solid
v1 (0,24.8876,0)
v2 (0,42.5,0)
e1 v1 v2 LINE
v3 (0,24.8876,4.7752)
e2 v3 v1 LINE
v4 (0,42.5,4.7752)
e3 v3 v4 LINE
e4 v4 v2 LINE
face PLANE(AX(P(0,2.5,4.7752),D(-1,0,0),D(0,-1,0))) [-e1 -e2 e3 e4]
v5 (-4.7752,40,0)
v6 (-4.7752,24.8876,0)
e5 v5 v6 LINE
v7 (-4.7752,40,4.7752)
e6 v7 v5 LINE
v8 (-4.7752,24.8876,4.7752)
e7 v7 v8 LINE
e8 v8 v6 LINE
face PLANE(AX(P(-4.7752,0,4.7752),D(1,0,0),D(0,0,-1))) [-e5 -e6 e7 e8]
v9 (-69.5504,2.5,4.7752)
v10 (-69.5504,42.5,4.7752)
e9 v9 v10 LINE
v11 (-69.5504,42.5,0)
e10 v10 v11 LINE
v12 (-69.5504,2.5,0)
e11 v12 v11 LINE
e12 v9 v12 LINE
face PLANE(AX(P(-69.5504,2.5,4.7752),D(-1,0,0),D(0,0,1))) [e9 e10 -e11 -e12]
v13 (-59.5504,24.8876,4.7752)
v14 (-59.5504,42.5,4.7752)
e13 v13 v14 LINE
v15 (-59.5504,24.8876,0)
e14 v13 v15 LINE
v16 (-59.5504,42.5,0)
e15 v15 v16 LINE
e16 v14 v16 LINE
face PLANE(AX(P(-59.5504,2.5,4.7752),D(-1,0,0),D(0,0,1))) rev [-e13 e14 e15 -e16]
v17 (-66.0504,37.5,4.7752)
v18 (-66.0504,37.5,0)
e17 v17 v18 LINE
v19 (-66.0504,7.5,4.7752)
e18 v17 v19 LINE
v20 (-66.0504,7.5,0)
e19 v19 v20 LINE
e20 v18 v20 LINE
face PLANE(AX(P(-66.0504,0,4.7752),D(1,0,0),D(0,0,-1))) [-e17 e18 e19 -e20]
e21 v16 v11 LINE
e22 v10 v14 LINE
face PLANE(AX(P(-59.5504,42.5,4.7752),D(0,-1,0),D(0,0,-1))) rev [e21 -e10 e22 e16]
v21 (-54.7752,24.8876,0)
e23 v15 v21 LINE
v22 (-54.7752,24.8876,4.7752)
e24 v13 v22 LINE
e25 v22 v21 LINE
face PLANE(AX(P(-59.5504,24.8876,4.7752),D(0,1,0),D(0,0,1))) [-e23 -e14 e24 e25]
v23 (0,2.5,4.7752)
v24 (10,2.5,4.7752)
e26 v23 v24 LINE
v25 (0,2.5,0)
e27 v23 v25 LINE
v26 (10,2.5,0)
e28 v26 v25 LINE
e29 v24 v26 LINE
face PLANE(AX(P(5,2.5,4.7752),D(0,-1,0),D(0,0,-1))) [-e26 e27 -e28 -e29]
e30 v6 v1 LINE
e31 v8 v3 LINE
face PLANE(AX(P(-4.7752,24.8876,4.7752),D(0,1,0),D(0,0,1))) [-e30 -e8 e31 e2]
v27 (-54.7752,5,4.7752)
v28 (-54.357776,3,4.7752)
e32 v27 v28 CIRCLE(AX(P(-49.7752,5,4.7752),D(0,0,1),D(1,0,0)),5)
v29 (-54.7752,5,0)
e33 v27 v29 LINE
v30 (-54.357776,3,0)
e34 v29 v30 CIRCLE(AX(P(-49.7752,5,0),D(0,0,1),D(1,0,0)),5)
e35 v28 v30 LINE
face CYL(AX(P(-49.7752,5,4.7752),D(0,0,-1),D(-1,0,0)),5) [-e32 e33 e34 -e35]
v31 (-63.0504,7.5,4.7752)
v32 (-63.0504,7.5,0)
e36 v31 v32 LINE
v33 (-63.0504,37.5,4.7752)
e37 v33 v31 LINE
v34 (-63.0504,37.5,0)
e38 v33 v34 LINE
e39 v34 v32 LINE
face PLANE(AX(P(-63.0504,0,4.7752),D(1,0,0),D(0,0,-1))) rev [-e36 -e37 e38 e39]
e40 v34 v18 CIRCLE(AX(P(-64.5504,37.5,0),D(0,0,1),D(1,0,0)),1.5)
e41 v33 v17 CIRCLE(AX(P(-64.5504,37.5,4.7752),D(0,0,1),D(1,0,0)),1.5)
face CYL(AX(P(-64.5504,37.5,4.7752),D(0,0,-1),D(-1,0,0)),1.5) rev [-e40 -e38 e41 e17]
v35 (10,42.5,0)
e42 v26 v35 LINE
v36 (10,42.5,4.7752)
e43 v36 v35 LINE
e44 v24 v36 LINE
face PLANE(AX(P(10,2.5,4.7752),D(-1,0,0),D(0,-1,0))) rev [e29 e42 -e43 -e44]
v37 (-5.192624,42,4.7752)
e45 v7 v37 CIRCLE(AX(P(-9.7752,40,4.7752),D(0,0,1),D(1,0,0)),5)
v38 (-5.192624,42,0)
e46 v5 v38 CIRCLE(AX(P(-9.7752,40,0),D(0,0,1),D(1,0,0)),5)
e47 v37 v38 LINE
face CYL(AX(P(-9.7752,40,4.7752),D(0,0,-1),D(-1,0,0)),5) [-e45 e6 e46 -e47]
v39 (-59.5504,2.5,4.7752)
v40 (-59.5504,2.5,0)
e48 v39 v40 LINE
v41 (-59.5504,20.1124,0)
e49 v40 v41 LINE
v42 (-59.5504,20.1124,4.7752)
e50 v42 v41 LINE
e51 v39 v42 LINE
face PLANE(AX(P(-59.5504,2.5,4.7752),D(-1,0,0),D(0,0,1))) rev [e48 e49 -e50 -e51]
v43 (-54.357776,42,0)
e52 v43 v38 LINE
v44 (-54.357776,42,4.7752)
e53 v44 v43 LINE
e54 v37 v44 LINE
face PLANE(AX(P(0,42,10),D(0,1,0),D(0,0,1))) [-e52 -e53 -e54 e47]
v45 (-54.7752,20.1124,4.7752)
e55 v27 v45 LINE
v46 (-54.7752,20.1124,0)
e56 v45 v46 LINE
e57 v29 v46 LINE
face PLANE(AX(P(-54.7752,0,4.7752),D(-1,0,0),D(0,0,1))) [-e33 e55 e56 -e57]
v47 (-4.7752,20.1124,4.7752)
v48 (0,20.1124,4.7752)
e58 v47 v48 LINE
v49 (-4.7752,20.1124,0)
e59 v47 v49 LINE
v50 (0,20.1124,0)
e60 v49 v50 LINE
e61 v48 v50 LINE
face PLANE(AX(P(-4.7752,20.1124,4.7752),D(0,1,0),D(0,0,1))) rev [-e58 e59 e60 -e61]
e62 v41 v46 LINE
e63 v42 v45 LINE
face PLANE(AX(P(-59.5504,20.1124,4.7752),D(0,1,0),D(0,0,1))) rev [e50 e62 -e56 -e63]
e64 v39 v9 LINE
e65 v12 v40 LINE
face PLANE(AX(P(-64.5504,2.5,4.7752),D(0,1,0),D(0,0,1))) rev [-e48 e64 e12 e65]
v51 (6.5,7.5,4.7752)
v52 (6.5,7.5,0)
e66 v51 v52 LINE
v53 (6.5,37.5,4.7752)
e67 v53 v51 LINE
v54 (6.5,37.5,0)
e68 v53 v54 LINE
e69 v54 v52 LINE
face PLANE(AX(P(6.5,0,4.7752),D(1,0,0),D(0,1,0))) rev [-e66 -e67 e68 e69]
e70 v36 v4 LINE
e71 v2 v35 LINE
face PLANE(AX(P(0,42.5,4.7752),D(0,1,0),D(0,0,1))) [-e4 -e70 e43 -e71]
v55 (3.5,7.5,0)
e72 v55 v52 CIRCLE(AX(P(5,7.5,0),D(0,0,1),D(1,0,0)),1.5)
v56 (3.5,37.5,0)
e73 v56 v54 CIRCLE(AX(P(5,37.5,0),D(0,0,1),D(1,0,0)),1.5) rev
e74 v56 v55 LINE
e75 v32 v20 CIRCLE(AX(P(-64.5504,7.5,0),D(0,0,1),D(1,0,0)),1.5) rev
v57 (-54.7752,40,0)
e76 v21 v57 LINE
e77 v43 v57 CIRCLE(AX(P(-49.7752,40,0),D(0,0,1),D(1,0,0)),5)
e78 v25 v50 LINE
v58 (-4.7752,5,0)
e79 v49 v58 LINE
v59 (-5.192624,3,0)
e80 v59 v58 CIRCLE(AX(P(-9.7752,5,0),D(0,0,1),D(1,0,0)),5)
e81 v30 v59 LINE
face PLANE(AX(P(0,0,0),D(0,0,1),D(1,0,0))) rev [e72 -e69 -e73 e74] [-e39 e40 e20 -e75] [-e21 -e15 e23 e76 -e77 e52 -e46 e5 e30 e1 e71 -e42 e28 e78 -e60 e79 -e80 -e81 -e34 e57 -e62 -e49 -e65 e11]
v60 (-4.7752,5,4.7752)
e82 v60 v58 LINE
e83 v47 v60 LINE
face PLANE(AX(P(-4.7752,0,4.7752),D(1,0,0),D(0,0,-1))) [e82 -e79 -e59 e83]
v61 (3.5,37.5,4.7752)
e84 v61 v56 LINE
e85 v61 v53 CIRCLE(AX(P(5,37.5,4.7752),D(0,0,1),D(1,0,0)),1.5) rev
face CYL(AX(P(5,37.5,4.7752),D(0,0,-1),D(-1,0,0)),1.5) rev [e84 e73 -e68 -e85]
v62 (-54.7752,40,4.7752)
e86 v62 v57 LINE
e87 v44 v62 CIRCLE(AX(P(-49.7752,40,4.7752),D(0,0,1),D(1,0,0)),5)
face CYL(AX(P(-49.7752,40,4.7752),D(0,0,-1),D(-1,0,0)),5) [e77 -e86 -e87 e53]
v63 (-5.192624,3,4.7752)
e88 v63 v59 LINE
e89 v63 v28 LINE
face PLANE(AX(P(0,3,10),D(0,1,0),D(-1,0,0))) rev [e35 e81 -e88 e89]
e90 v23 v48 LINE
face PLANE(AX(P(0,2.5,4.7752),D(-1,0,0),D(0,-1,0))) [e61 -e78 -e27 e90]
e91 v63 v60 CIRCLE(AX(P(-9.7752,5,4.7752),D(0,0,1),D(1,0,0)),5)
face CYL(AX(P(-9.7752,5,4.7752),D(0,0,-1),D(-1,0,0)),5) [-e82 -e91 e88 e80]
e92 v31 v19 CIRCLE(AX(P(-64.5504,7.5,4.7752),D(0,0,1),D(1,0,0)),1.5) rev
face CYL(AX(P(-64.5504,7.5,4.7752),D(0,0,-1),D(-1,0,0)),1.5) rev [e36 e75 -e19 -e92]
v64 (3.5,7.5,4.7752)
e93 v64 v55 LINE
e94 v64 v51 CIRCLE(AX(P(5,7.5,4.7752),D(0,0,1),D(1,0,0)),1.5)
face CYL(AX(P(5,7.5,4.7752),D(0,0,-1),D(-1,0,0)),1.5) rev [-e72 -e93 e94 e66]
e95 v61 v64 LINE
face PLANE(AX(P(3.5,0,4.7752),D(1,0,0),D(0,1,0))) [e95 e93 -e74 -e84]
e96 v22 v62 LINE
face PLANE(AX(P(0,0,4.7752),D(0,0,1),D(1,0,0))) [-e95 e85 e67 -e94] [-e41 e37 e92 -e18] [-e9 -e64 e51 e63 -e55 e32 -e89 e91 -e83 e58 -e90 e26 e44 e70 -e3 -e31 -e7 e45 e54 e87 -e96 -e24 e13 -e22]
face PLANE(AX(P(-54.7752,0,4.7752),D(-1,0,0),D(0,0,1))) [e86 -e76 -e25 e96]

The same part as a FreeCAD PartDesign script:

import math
import FreeCAD as App
import Part
import Sketcher
Q = App.Units.Quantity

doc = App.newDocument("Part")
params = doc.addObject("Spreadsheet::Sheet", "Params")
for row, (alias, value) in enumerate([
    ("sketch1_radius", "5 mm"),
    ("sketch1_width", "40 mm"),
    ("sketch1_width2", "10 mm"),
    ("pad1_length", "4.7752 mm"),
    ("sketch2_radius", "1.5 mm"),
    ("sketch2_height", "30 mm"),
    ("sketch3_radius", "5 mm"),
    ("sketch3_width", "40 mm"),
    ("pocket2_length", "10 mm"),
], start=1):
    params.set(f"A{row}", alias)
    params.set(f"B{row}", "=" + value)
    params.setAlias(f"B{row}", alias)

body = doc.addObject("PartDesign::Body", "Body")

sketch1 = body.newObject("Sketcher::SketchObject", "Sketch")
sketch1.AttachmentSupport = (doc.getObject("XY_Plane"), [""])
sketch1.MapMode = "FlatFace"
sketch1.addGeometry(Part.LineSegment(App.Vector(0, 24.8876, 0), App.Vector(-4.7752, 24.8876, 0)), False)
sketch1.addGeometry(Part.LineSegment(App.Vector(-4.7752, 24.8876, 0), App.Vector(-4.7752, 40, 0)), False)
sketch1.addGeometry(Part.ArcOfCircle(Part.Circle(App.Vector(-9.7752, 40, 0), App.Vector(0, 0, 1), 5), math.radians(0), math.radians(90)), False)
sketch1.addGeometry(Part.LineSegment(App.Vector(-9.7752, 45, 0), App.Vector(-49.7752, 45, 0)), False)
sketch1.addGeometry(Part.ArcOfCircle(Part.Circle(App.Vector(-49.7752, 40, 0), App.Vector(0, 0, 1), 5), math.radians(90), math.radians(180)), False)
sketch1.addGeometry(Part.LineSegment(App.Vector(-54.7752, 40, 0), App.Vector(-54.7752, 24.8876, 0)), False)
sketch1.addGeometry(Part.LineSegment(App.Vector(-54.7752, 24.8876, 0), App.Vector(-59.5504, 24.8876, 0)), False)
sketch1.addGeometry(Part.LineSegment(App.Vector(-59.5504, 24.8876, 0), App.Vector(-59.5504, 42.5, 0)), False)
sketch1.addGeometry(Part.LineSegment(App.Vector(-59.5504, 42.5, 0), App.Vector(-69.5504, 42.5, 0)), False)
sketch1.addGeometry(Part.LineSegment(App.Vector(-69.5504, 42.5, 0), App.Vector(-69.5504, 2.5, 0)), False)
sketch1.addGeometry(Part.LineSegment(App.Vector(-69.5504, 2.5, 0), App.Vector(-59.5504, 2.5, 0)), False)
sketch1.addGeometry(Part.LineSegment(App.Vector(-59.5504, 2.5, 0), App.Vector(-59.5504, 20.1124, 0)), False)
sketch1.addGeometry(Part.LineSegment(App.Vector(-59.5504, 20.1124, 0), App.Vector(-54.7752, 20.1124, 0)), False)
sketch1.addGeometry(Part.LineSegment(App.Vector(-54.7752, 20.1124, 0), App.Vector(-54.7752, 5, 0)), False)
sketch1.addGeometry(Part.ArcOfCircle(Part.Circle(App.Vector(-49.7752, 5, 0), App.Vector(0, 0, 1), 5), math.radians(180), math.radians(270)), False)
sketch1.addGeometry(Part.LineSegment(App.Vector(-49.7752, 0, 0), App.Vector(-9.7752, 0, 0)), False)
sketch1.addGeometry(Part.ArcOfCircle(Part.Circle(App.Vector(-9.7752, 5, 0), App.Vector(0, 0, 1), 5), math.radians(-90), math.radians(0)), False)
sketch1.addGeometry(Part.LineSegment(App.Vector(-4.7752, 5, 0), App.Vector(-4.7752, 20.1124, 0)), False)
sketch1.addGeometry(Part.LineSegment(App.Vector(-4.7752, 20.1124, 0), App.Vector(0, 20.1124, 0)), False)
sketch1.addGeometry(Part.LineSegment(App.Vector(0, 20.1124, 0), App.Vector(0, 2.5, 0)), False)
sketch1.addGeometry(Part.LineSegment(App.Vector(0, 2.5, 0), App.Vector(10, 2.5, 0)), False)
sketch1.addGeometry(Part.LineSegment(App.Vector(10, 2.5, 0), App.Vector(10, 42.5, 0)), False)
sketch1.addGeometry(Part.LineSegment(App.Vector(10, 42.5, 0), App.Vector(0, 42.5, 0)), False)
sketch1.addGeometry(Part.LineSegment(App.Vector(0, 42.5, 0), App.Vector(0, 24.8876, 0)), False)
sketch1.addConstraint(Sketcher.Constraint("Coincident", 0, 2, 1, 1))
sketch1.addConstraint(Sketcher.Constraint("Tangent", 1, 2, 2, 1))
sketch1.addConstraint(Sketcher.Constraint("Tangent", 2, 2, 3, 1))
sketch1.addConstraint(Sketcher.Constraint("Tangent", 3, 2, 4, 1))
sketch1.addConstraint(Sketcher.Constraint("Tangent", 4, 2, 5, 1))
sketch1.addConstraint(Sketcher.Constraint("Coincident", 5, 2, 6, 1))
sketch1.addConstraint(Sketcher.Constraint("Coincident", 6, 2, 7, 1))
sketch1.addConstraint(Sketcher.Constraint("Coincident", 7, 2, 8, 1))
sketch1.addConstraint(Sketcher.Constraint("Coincident", 8, 2, 9, 1))
sketch1.addConstraint(Sketcher.Constraint("Coincident", 9, 2, 10, 1))
sketch1.addConstraint(Sketcher.Constraint("Coincident", 10, 2, 11, 1))
sketch1.addConstraint(Sketcher.Constraint("Coincident", 11, 2, 12, 1))
sketch1.addConstraint(Sketcher.Constraint("Coincident", 12, 2, 13, 1))
sketch1.addConstraint(Sketcher.Constraint("Tangent", 13, 2, 14, 1))
sketch1.addConstraint(Sketcher.Constraint("Tangent", 14, 2, 15, 1))
sketch1.addConstraint(Sketcher.Constraint("Tangent", 15, 2, 16, 1))
sketch1.addConstraint(Sketcher.Constraint("Tangent", 16, 2, 17, 1))
sketch1.addConstraint(Sketcher.Constraint("Coincident", 17, 2, 18, 1))
sketch1.addConstraint(Sketcher.Constraint("Coincident", 18, 2, 19, 1))
sketch1.addConstraint(Sketcher.Constraint("Coincident", 19, 2, 20, 1))
sketch1.addConstraint(Sketcher.Constraint("Coincident", 20, 2, 21, 1))
sketch1.addConstraint(Sketcher.Constraint("Coincident", 21, 2, 22, 1))
sketch1.addConstraint(Sketcher.Constraint("Coincident", 22, 2, 23, 1))
sketch1.addConstraint(Sketcher.Constraint("Coincident", 23, 2, 0, 1))
sketch1.addConstraint(Sketcher.Constraint("Horizontal", 0))
sketch1.addConstraint(Sketcher.Constraint("Vertical", 1))
sketch1.addConstraint(Sketcher.Constraint("Horizontal", 3))
sketch1.addConstraint(Sketcher.Constraint("Vertical", 5))
sketch1.addConstraint(Sketcher.Constraint("Horizontal", 6))
sketch1.addConstraint(Sketcher.Constraint("Vertical", 7))
sketch1.addConstraint(Sketcher.Constraint("Horizontal", 8))
sketch1.addConstraint(Sketcher.Constraint("Vertical", 9))
sketch1.addConstraint(Sketcher.Constraint("Horizontal", 10))
sketch1.addConstraint(Sketcher.Constraint("Vertical", 11))
sketch1.addConstraint(Sketcher.Constraint("Horizontal", 12))
sketch1.addConstraint(Sketcher.Constraint("Vertical", 13))
sketch1.addConstraint(Sketcher.Constraint("Horizontal", 15))
sketch1.addConstraint(Sketcher.Constraint("Vertical", 17))
sketch1.addConstraint(Sketcher.Constraint("Horizontal", 18))
sketch1.addConstraint(Sketcher.Constraint("Vertical", 19))
sketch1.addConstraint(Sketcher.Constraint("Horizontal", 20))
sketch1.addConstraint(Sketcher.Constraint("Vertical", 21))
sketch1.addConstraint(Sketcher.Constraint("Horizontal", 22))
sketch1.addConstraint(Sketcher.Constraint("Vertical", 23))
sketch1.addConstraint(Sketcher.Constraint("Equal", 2, 4))
sketch1.addConstraint(Sketcher.Constraint("Equal", 4, 14))
sketch1.addConstraint(Sketcher.Constraint("Equal", 14, 16))
sketch1.addConstraint(Sketcher.Constraint("PointOnObject", 14, 2, -1))
sketch1.addConstraint(Sketcher.Constraint("PointOnObject", 18, 2, -2))
sketch1.addConstraint(Sketcher.Constraint("PointOnObject", 22, 2, -2))
sketch1.addConstraint(Sketcher.Constraint("Horizontal", 0, 2, 5, 2))
sketch1.addConstraint(Sketcher.Constraint("Horizontal", 12, 2, 17, 2))
sketch1.addConstraint(Sketcher.Constraint("Horizontal", 10, 2, 19, 2))
sketch1.addConstraint(Sketcher.Constraint("Horizontal", 8, 2, 21, 2))
sketch1.addConstraint(Sketcher.Constraint("Vertical", 4, 3, 14, 3))
sketch1.addConstraint(Sketcher.Constraint("Vertical", 2, 3, 16, 3))
sketch1.addConstraint(Sketcher.Constraint("Vertical", 7, 2, 10, 2))
sketch1.addConstraint(Sketcher.Constraint("Equal", 0, 6))
sketch1.addConstraint(Sketcher.Constraint("Equal", 10, 20))
sketch1.addConstraint(Sketcher.Constraint("Equal", 15, 9))
sketch1.addConstraint(Sketcher.Constraint("Equal", 7, 11))
sketch1.addConstraint(Sketcher.Constraint("Equal", 5, 13))
sketch1.addConstraint(Sketcher.Constraint("Radius", 2, Q("5 mm")))
sketch1.addConstraint(Sketcher.Constraint("DistanceX", 3, 2, 3, 1, Q("40 mm")))
sketch1.addConstraint(Sketcher.Constraint("DistanceX", 8, 2, 8, 1, Q("10 mm")))
sketch1.addConstraint(Sketcher.Constraint("DistanceY", -1, 1, 2, 3, Q("40 mm")))
sketch1.addConstraint(Sketcher.Constraint("DistanceX", 0, 2, 0, 1, Q("4.7752 mm")))
sketch1.addConstraint(Sketcher.Constraint("DistanceY", 1, 1, 1, 2, Q("15.1124 mm")))
sketch1.setExpression("Constraints[62]", "Params.sketch1_radius")
sketch1.setExpression("Constraints[63]", "Params.sketch1_width")
sketch1.setExpression("Constraints[64]", "Params.sketch1_width2")
pad1 = body.newObject("PartDesign::Pad", "Pad")
pad1.Profile = sketch1
pad1.setExpression("Length", "Params.pad1_length")

sketch2 = body.newObject("Sketcher::SketchObject", "Sketch001")
sketch2.AttachmentSupport = (doc.getObject("XY_Plane"), [""])
sketch2.MapMode = "FlatFace"
sketch2.addGeometry(Part.LineSegment(App.Vector(-66.0504, 37.5, 0), App.Vector(-66.0504, 7.5, 0)), False)
sketch2.addGeometry(Part.ArcOfCircle(Part.Circle(App.Vector(-64.5504, 7.5, 0), App.Vector(0, 0, 1), 1.5), math.radians(180), math.radians(360)), False)
sketch2.addGeometry(Part.LineSegment(App.Vector(-63.0504, 7.5, 0), App.Vector(-63.0504, 37.5, 0)), False)
sketch2.addGeometry(Part.ArcOfCircle(Part.Circle(App.Vector(-64.5504, 37.5, 0), App.Vector(0, 0, 1), 1.5), math.radians(0), math.radians(180)), False)
sketch2.addGeometry(Part.LineSegment(App.Vector(3.5, 37.5, 0), App.Vector(3.5, 7.5, 0)), False)
sketch2.addGeometry(Part.ArcOfCircle(Part.Circle(App.Vector(5, 7.5, 0), App.Vector(0, 0, 1), 1.5), math.radians(180), math.radians(360)), False)
sketch2.addGeometry(Part.LineSegment(App.Vector(6.5, 7.5, 0), App.Vector(6.5, 37.5, 0)), False)
sketch2.addGeometry(Part.ArcOfCircle(Part.Circle(App.Vector(5, 37.5, 0), App.Vector(0, 0, 1), 1.5), math.radians(0), math.radians(180)), False)
sketch2.addConstraint(Sketcher.Constraint("Tangent", 0, 2, 1, 1))
sketch2.addConstraint(Sketcher.Constraint("Tangent", 1, 2, 2, 1))
sketch2.addConstraint(Sketcher.Constraint("Tangent", 2, 2, 3, 1))
sketch2.addConstraint(Sketcher.Constraint("Tangent", 3, 2, 0, 1))
sketch2.addConstraint(Sketcher.Constraint("Tangent", 4, 2, 5, 1))
sketch2.addConstraint(Sketcher.Constraint("Tangent", 5, 2, 6, 1))
sketch2.addConstraint(Sketcher.Constraint("Tangent", 6, 2, 7, 1))
sketch2.addConstraint(Sketcher.Constraint("Tangent", 7, 2, 4, 1))
sketch2.addConstraint(Sketcher.Constraint("Vertical", 0))
sketch2.addConstraint(Sketcher.Constraint("Vertical", 2))
sketch2.addConstraint(Sketcher.Constraint("Vertical", 4))
sketch2.addConstraint(Sketcher.Constraint("Vertical", 6))
sketch2.addConstraint(Sketcher.Constraint("Equal", 3, 5))
sketch2.addConstraint(Sketcher.Constraint("Horizontal", 1, 3, 5, 3))
sketch2.addConstraint(Sketcher.Constraint("Horizontal", 3, 3, 7, 3))
sketch2.addConstraint(Sketcher.Constraint("Radius", 1, Q("1.5 mm")))
sketch2.addConstraint(Sketcher.Constraint("DistanceY", 0, 2, 0, 1, Q("30 mm")))
sketch2.addConstraint(Sketcher.Constraint("DistanceX", -1, 1, 5, 3, Q("5 mm")))
sketch2.addConstraint(Sketcher.Constraint("DistanceY", -1, 1, 1, 3, Q("7.5 mm")))
sketch2.addConstraint(Sketcher.Constraint("DistanceX", 1, 3, -1, 1, Q("64.5504 mm")))
sketch2.setExpression("Constraints[15]", "Params.sketch2_radius")
sketch2.setExpression("Constraints[16]", "Params.sketch2_height")
pocket1 = body.newObject("PartDesign::Pocket", "Pocket")
pocket1.Profile = sketch2
pocket1.Type = "ThroughAll"
pocket1.Reversed = True

sketch3 = body.newObject("Sketcher::SketchObject", "Sketch002")
sketch3.AttachmentSupport = (doc.getObject("XY_Plane"), [""])
sketch3.MapMode = "FlatFace"
sketch3.addGeometry(Part.ArcOfCircle(Part.Circle(App.Vector(-9.7752, 40, 0), App.Vector(0, 0, 1), 5), math.radians(23.578178), math.radians(90)), False)
sketch3.addGeometry(Part.LineSegment(App.Vector(-9.7752, 45, 0), App.Vector(-49.7752, 45, 0)), False)
sketch3.addGeometry(Part.ArcOfCircle(Part.Circle(App.Vector(-49.7752, 40, 0), App.Vector(0, 0, 1), 5), math.radians(90), math.radians(156.421822)), False)
sketch3.addGeometry(Part.LineSegment(App.Vector(-54.357776, 42, 0), App.Vector(-5.192624, 42, 0)), False)
sketch3.addGeometry(Part.ArcOfCircle(Part.Circle(App.Vector(-9.7752, 5, 0), App.Vector(0, 0, 1), 5), math.radians(-90), math.radians(-23.578178)), False)
sketch3.addGeometry(Part.LineSegment(App.Vector(-5.192624, 3, 0), App.Vector(-54.357776, 3, 0)), False)
sketch3.addGeometry(Part.ArcOfCircle(Part.Circle(App.Vector(-49.7752, 5, 0), App.Vector(0, 0, 1), 5), math.radians(-156.421822), math.radians(-90)), False)
sketch3.addGeometry(Part.LineSegment(App.Vector(-49.7752, 0, 0), App.Vector(-9.7752, 0, 0)), False)
sketch3.addConstraint(Sketcher.Constraint("Tangent", 0, 2, 1, 1))
sketch3.addConstraint(Sketcher.Constraint("Tangent", 1, 2, 2, 1))
sketch3.addConstraint(Sketcher.Constraint("Coincident", 2, 2, 3, 1))
sketch3.addConstraint(Sketcher.Constraint("Coincident", 3, 2, 0, 1))
sketch3.addConstraint(Sketcher.Constraint("Coincident", 4, 2, 5, 1))
sketch3.addConstraint(Sketcher.Constraint("Coincident", 5, 2, 6, 1))
sketch3.addConstraint(Sketcher.Constraint("Tangent", 6, 2, 7, 1))
sketch3.addConstraint(Sketcher.Constraint("Tangent", 7, 2, 4, 1))
sketch3.addConstraint(Sketcher.Constraint("Horizontal", 1))
sketch3.addConstraint(Sketcher.Constraint("Horizontal", 3))
sketch3.addConstraint(Sketcher.Constraint("Horizontal", 5))
sketch3.addConstraint(Sketcher.Constraint("Horizontal", 7))
sketch3.addConstraint(Sketcher.Constraint("Equal", 0, 2))
sketch3.addConstraint(Sketcher.Constraint("Equal", 2, 4))
sketch3.addConstraint(Sketcher.Constraint("Equal", 4, 6))
sketch3.addConstraint(Sketcher.Constraint("PointOnObject", 6, 2, -1))
sketch3.addConstraint(Sketcher.Constraint("Vertical", 0, 3, 4, 3))
sketch3.addConstraint(Sketcher.Constraint("Vertical", 2, 3, 6, 3))
sketch3.addConstraint(Sketcher.Constraint("Vertical", 3, 2, 4, 2))
sketch3.addConstraint(Sketcher.Constraint("Radius", 0, Q("5 mm")))
sketch3.addConstraint(Sketcher.Constraint("DistanceX", 1, 2, 1, 1, Q("40 mm")))
sketch3.addConstraint(Sketcher.Constraint("DistanceY", -1, 1, 0, 3, Q("40 mm")))
sketch3.addConstraint(Sketcher.Constraint("DistanceY", -1, 1, 2, 2, Q("42 mm")))
sketch3.addConstraint(Sketcher.Constraint("DistanceX", 0, 3, -1, 1, Q("9.7752 mm")))
sketch3.setExpression("Constraints[19]", "Params.sketch3_radius")
sketch3.setExpression("Constraints[20]", "Params.sketch3_width")
pocket2 = body.newObject("PartDesign::Pocket", "Pocket001")
pocket2.Profile = sketch3
pocket2.setExpression("Length", "Params.pocket2_length")
pocket2.Reversed = True

doc.recompute()
